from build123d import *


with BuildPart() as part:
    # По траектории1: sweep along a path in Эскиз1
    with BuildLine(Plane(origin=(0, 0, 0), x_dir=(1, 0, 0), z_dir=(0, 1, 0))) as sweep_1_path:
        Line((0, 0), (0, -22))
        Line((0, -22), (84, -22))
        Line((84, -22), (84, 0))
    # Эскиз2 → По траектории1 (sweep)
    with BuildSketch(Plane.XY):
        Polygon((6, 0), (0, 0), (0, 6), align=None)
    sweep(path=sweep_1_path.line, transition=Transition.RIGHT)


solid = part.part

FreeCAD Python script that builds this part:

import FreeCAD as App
import Part
import Sketcher
from FreeCAD import Vector

doc = App.newDocument("Part")
body = doc.addObject("PartDesign::Body", "Body")

sketch1 = body.newObject("Sketcher::SketchObject", "Sketch")
sketch1.AttachmentSupport = (doc.getObject("XY_Plane"), [""])
sketch1.MapMode = "FlatFace"
sketch1.addGeometry(Part.LineSegment(Vector(0, 0, 0), Vector(6, 0, 0)), False)
sketch1.addGeometry(Part.LineSegment(Vector(6, 0, 0), Vector(0, 6, 0)), False)
sketch1.addGeometry(Part.LineSegment(Vector(0, 6, 0), Vector(0, 0, 0)), False)
sketch1.addConstraint(Sketcher.Constraint("Coincident", 0, 2, 1, 1))
sketch1.addConstraint(Sketcher.Constraint("Coincident", 1, 2, 2, 1))
sketch1.addConstraint(Sketcher.Constraint("Coincident", 2, 2, 0, 1))
sketch1.addConstraint(Sketcher.Constraint("Horizontal", 0))
sketch1.addConstraint(Sketcher.Constraint("Vertical", 2))
sketch1.addConstraint(Sketcher.Constraint("Coincident", 2, 2, -1, 1))
sketch1.addConstraint(Sketcher.Constraint("Equal", 0, 2))
sketch1.addConstraint(Sketcher.Constraint("DistanceX", 0, 1, 0, 2, 6.0))

sketch2 = body.newObject("Sketcher::SketchObject", "Sketch001")
sketch2.AttachmentSupport = (doc.getObject("XZ_Plane"), [""])
sketch2.MapMode = "FlatFace"
sketch2.addGeometry(Part.LineSegment(Vector(0, 0, 0), Vector(0, 22, 0)), False)
sketch2.addGeometry(Part.LineSegment(Vector(0, 22, 0), Vector(84, 22, 0)), False)
sketch2.addGeometry(Part.LineSegment(Vector(84, 22, 0), Vector(84, 0, 0)), False)
sketch2.addConstraint(Sketcher.Constraint("Coincident", 0, 2, 1, 1))
sketch2.addConstraint(Sketcher.Constraint("Coincident", 1, 2, 2, 1))
sketch2.addConstraint(Sketcher.Constraint("Vertical", 0))
sketch2.addConstraint(Sketcher.Constraint("Horizontal", 1))
sketch2.addConstraint(Sketcher.Constraint("Vertical", 2))
sketch2.addConstraint(Sketcher.Constraint("Coincident", 0, 1, -1, 1))
sketch2.addConstraint(Sketcher.Constraint("PointOnObject", 2, 2, -1))
sketch2.addConstraint(Sketcher.Constraint("DistanceX", 1, 1, 1, 2, 84.0))
sketch2.addConstraint(Sketcher.Constraint("DistanceY", 0, 1, 0, 2, 22.0))
doc.recompute()

additivepipe = body.newObject("PartDesign::AdditivePipe", "AdditivePipe")
additivepipe.Profile = sketch1
additivepipe.Spine = (sketch2, ["Edge1", "Edge2", "Edge3"])
additivepipe.Transition = "Right corner"

doc.recompute()
